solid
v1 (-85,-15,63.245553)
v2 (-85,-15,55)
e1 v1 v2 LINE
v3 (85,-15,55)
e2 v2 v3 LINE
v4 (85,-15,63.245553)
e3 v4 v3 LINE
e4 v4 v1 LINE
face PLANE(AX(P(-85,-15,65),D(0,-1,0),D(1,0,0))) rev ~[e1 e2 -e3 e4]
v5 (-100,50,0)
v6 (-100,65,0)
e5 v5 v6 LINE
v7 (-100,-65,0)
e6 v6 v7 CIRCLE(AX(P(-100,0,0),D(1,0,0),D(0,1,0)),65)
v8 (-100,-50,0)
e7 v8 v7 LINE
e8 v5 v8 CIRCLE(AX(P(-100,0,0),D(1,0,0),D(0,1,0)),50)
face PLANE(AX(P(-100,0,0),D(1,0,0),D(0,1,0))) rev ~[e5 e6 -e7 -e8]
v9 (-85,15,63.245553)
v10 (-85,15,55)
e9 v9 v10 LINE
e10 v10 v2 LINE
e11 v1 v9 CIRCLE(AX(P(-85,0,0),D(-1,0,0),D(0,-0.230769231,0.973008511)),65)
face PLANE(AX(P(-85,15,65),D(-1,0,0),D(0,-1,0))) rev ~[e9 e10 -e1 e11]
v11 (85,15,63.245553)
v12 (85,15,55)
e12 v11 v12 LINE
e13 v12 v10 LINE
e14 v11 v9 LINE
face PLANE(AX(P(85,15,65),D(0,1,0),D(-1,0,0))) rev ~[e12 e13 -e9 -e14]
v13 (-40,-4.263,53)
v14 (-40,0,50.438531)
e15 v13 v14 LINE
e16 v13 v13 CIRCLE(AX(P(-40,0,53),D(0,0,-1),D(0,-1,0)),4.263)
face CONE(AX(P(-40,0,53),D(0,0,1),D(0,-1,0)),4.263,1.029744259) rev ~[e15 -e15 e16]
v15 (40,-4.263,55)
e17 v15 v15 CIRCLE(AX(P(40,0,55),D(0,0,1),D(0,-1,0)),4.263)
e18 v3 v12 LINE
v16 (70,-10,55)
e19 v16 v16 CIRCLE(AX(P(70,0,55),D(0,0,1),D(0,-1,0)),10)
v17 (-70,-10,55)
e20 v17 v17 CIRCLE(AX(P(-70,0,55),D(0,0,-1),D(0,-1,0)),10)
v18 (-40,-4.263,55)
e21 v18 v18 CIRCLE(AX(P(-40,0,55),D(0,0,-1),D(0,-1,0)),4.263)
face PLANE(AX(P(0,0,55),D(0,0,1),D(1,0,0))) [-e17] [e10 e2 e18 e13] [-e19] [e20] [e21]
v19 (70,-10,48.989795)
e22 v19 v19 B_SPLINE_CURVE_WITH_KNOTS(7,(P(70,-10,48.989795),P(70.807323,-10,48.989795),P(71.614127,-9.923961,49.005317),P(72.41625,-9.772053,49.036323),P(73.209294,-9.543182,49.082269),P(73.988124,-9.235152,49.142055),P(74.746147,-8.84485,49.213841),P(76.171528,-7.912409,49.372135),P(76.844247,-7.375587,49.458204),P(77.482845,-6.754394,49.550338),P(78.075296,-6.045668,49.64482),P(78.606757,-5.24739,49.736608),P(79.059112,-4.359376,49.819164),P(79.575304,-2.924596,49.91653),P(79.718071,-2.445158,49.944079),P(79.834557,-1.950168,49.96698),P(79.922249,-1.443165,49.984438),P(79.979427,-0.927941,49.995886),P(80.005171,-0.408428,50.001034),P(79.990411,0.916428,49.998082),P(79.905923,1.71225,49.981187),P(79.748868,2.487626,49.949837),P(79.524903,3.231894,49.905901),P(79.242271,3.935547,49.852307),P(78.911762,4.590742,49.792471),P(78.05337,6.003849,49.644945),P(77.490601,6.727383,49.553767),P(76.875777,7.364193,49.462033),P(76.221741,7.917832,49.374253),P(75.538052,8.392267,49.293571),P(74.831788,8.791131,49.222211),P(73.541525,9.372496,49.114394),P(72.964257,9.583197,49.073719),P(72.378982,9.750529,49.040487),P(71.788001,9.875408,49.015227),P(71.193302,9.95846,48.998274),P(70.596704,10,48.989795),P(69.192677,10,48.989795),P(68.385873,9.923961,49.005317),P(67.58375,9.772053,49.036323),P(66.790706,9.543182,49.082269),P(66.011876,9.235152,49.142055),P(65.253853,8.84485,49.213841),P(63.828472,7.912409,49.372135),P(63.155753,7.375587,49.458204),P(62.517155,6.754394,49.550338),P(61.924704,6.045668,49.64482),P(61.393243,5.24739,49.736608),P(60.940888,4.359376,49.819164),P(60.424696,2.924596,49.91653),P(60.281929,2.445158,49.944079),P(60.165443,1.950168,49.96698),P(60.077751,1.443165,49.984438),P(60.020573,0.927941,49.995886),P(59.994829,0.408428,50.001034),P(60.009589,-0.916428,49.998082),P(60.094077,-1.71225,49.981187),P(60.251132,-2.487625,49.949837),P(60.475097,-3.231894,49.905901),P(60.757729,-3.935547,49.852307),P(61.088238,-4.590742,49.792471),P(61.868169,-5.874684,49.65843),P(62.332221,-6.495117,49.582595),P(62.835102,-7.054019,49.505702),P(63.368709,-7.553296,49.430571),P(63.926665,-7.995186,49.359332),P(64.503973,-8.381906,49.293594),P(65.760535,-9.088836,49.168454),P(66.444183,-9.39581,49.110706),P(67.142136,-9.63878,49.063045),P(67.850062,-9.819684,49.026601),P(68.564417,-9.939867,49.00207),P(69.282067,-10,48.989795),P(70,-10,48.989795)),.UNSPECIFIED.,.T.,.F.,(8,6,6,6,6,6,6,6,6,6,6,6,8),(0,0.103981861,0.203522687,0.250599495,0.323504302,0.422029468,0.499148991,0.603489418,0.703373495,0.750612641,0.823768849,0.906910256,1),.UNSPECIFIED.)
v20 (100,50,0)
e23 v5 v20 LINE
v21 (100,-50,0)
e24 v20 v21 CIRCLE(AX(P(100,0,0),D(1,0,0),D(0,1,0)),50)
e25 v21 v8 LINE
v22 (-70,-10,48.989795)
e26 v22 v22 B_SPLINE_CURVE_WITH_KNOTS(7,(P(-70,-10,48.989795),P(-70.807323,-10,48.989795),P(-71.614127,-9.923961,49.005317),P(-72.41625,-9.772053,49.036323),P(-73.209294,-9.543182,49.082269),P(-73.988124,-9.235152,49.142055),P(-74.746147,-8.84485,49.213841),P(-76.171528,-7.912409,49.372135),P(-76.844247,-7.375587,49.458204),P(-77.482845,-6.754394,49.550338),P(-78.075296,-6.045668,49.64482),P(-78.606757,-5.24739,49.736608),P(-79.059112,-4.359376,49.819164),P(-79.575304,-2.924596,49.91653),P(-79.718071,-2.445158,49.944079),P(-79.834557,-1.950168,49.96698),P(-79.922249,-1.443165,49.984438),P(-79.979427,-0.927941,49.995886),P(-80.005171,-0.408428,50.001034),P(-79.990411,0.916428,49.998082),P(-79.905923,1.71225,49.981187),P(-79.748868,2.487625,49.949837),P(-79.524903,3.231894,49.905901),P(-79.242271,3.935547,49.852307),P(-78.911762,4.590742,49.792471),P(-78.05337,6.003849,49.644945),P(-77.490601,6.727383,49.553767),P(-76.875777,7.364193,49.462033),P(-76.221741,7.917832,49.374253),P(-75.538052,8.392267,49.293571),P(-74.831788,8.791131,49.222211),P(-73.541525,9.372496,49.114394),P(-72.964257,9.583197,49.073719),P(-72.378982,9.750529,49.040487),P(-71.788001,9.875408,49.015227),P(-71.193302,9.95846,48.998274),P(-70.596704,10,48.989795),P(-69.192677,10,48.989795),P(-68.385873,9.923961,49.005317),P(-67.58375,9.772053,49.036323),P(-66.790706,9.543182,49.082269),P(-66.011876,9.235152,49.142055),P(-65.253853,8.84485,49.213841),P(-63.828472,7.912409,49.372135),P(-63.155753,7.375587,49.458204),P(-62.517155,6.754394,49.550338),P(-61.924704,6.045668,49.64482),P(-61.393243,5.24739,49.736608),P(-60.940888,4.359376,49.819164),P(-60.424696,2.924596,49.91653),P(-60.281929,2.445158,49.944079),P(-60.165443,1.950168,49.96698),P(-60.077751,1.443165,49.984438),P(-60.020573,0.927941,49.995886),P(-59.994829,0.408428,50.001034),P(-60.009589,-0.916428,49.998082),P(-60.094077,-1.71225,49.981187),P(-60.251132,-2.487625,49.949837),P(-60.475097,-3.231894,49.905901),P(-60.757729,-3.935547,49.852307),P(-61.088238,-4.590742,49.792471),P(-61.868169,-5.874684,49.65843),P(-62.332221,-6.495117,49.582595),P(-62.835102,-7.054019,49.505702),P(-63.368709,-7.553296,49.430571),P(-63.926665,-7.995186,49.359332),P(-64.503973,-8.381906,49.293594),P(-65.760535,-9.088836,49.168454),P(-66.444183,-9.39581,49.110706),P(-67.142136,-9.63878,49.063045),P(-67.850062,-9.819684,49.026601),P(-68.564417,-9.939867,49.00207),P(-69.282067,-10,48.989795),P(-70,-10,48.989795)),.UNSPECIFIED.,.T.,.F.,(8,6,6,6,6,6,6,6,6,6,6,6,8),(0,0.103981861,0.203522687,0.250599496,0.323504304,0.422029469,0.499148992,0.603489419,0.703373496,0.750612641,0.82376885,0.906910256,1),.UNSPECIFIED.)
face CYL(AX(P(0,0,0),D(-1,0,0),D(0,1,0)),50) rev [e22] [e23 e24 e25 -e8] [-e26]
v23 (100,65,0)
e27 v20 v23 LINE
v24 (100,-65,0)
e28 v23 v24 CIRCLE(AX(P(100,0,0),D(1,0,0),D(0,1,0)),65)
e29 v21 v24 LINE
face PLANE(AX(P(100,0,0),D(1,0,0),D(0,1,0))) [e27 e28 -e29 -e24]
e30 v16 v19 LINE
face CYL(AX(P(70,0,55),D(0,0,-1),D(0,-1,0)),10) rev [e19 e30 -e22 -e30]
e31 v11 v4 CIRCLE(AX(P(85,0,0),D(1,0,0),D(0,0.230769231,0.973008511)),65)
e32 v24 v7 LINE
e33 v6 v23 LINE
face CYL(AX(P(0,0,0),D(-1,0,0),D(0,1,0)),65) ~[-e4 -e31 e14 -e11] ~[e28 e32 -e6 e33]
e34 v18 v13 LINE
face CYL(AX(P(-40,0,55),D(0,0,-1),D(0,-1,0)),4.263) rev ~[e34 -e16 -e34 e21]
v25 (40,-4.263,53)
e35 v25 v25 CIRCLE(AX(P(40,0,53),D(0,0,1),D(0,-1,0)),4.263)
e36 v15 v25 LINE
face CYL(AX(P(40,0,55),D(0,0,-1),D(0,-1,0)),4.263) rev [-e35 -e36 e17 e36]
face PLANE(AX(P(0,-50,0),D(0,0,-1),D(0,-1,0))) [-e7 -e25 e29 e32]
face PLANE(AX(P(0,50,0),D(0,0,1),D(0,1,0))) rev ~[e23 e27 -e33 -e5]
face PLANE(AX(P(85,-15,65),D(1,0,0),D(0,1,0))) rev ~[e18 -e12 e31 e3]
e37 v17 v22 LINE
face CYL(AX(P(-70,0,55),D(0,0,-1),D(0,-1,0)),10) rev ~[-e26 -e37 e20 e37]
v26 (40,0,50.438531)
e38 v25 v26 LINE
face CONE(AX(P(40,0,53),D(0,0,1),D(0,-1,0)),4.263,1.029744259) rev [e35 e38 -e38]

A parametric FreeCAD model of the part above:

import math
import FreeCAD as App
import Part
import Sketcher

doc = App.newDocument("Part")
body = doc.addObject("PartDesign::Body", "Body")

# Sketch on YZ plane
sketch1 = doc.addObject("Sketcher::SketchObject", "Sketch")
body.addObject(sketch1)
sketch1.AttachmentSupport = (doc.YZ_Plane, [""])
sketch1.MapMode = "FlatFace"
sketch1.addGeometry(Part.ArcOfCircle(Part.Circle(App.Vector(0, 0, 0), App.Vector(0, 0, 1), 50), math.radians(0), math.radians(180)), False)
sketch1.addGeometry(Part.LineSegment(App.Vector(50, 0, 0), App.Vector(65, 0, 0)), False)
sketch1.addGeometry(Part.ArcOfCircle(Part.Circle(App.Vector(0, 0, 0), App.Vector(0, 0, 1), 65), math.radians(0), math.radians(180)), False)
sketch1.addGeometry(Part.LineSegment(App.Vector(-65, 0, 0), App.Vector(-50, 0, 0)), False)
sketch1.addConstraint(Sketcher.Constraint("Coincident", 0, 1, 1, 1))
sketch1.addConstraint(Sketcher.Constraint("Coincident", 1, 2, 2, 1))
sketch1.addConstraint(Sketcher.Constraint("Coincident", 2, 2, 3, 1))
sketch1.addConstraint(Sketcher.Constraint("Coincident", 3, 2, 0, 2))
sketch1.addConstraint(Sketcher.Constraint("Horizontal", 1))
sketch1.addConstraint(Sketcher.Constraint("Horizontal", 3))
sketch1.addConstraint(Sketcher.Constraint("Coincident", 0, 3, -1, 1))
sketch1.addConstraint(Sketcher.Constraint("Coincident", 2, 3, -1, 1))
sketch1.addConstraint(Sketcher.Constraint("PointOnObject", 0, 1, -1))
sketch1.addConstraint(Sketcher.Constraint("PointOnObject", 2, 2, -1))
sketch1.addConstraint(Sketcher.Constraint("Radius", 0, 50.0))
sketch1.addConstraint(Sketcher.Constraint("DistanceX", 1, 1, 1, 2, 15.0))
pad1 = doc.addObject("PartDesign::Pad", "Pad")
body.addObject(pad1)
pad1.Profile = sketch1
pad1.Length = 200
pad1.Midplane = True

# Sketch on XY plane
sketch2 = doc.addObject("Sketcher::SketchObject", "Sketch001")
body.addObject(sketch2)
sketch2.AttachmentSupport = (doc.XY_Plane, [""])
sketch2.MapMode = "FlatFace"
sketch2.AttachmentOffset = App.Placement(App.Vector(0, 0, 65), App.Rotation())
sketch2.addGeometry(Part.LineSegment(App.Vector(85, -15, 0), App.Vector(85, 15, 0)), False)
sketch2.addGeometry(Part.LineSegment(App.Vector(85, 15, 0), App.Vector(-85, 15, 0)), False)
sketch2.addGeometry(Part.LineSegment(App.Vector(-85, 15, 0), App.Vector(-85, -15, 0)), False)
sketch2.addGeometry(Part.LineSegment(App.Vector(-85, -15, 0), App.Vector(85, -15, 0)), False)
sketch2.addConstraint(Sketcher.Constraint("Coincident", 0, 2, 1, 1))
sketch2.addConstraint(Sketcher.Constraint("Coincident", 1, 2, 2, 1))
sketch2.addConstraint(Sketcher.Constraint("Coincident", 2, 2, 3, 1))
sketch2.addConstraint(Sketcher.Constraint("Coincident", 3, 2, 0, 1))
sketch2.addConstraint(Sketcher.Constraint("Vertical", 0))
sketch2.addConstraint(Sketcher.Constraint("Horizontal", 1))
sketch2.addConstraint(Sketcher.Constraint("Vertical", 2))
sketch2.addConstraint(Sketcher.Constraint("Horizontal", 3))
sketch2.addConstraint(Sketcher.Constraint("Symmetric", 0, 2, 2, 2, -1, 1))
sketch2.addConstraint(Sketcher.Constraint("DistanceX", 1, 2, 1, 1, 170.0))
sketch2.addConstraint(Sketcher.Constraint("DistanceY", 0, 1, 0, 2, 30.0))
pocket1 = doc.addObject("PartDesign::Pocket", "Pocket")
body.addObject(pocket1)
pocket1.Profile = sketch2
pocket1.Length = 10

# Sketch on XY plane
sketch3 = doc.addObject("Sketcher::SketchObject", "Sketch002")
body.addObject(sketch3)
sketch3.AttachmentSupport = (doc.XY_Plane, [""])
sketch3.MapMode = "FlatFace"
sketch3.AttachmentOffset = App.Placement(App.Vector(0, 0, 55), App.Rotation())
sketch3.addGeometry(Part.Circle(App.Vector(-40, 0, 0), App.Vector(0, 0, 1), 4.3), False)
sketch3.addConstraint(Sketcher.Constraint("PointOnObject", 0, 3, -1))
sketch3.addConstraint(Sketcher.Constraint("Diameter", 0, 8.526))
sketch3.addConstraint(Sketcher.Constraint("DistanceX", 0, 3, -1, 1, 40.0))
doc.recompute()
hole = doc.addObject("PartDesign::Hole", "Hole")
body.addObject(hole)
hole.Profile = sketch3
hole.ThreadType = "None"
hole.Diameter = 8.526
hole.DepthType = "Dimension"
hole.Depth = 2
hole.DrillPoint = "Angled"
hole.DrillPointAngle = 118

# Sketch on XY plane
sketch4 = doc.addObject("Sketcher::SketchObject", "Sketch003")
body.addObject(sketch4)
sketch4.AttachmentSupport = (doc.XY_Plane, [""])
sketch4.MapMode = "FlatFace"
sketch4.AttachmentOffset = App.Placement(App.Vector(0, 0, 55), App.Rotation())
sketch4.addGeometry(Part.Circle(App.Vector(-70, 0, 0), App.Vector(0, 0, 1), 10), False)
sketch4.addConstraint(Sketcher.Constraint("PointOnObject", 0, 3, -1))
sketch4.addConstraint(Sketcher.Constraint("Diameter", 0, 20.0))
sketch4.addConstraint(Sketcher.Constraint("DistanceX", 0, 3, -1, 1, 70.0))
doc.recompute()
hole2 = doc.addObject("PartDesign::Hole", "Hole001")
body.addObject(hole2)
hole2.Profile = sketch4
hole2.ThreadType = "None"
hole2.Diameter = 20
hole2.DepthType = "ThroughAll"
doc.recompute()

mirrored = doc.addObject("PartDesign::Mirrored", "Mirrored")
body.addObject(mirrored)
mirrored.Originals = [hole, hole2]
mirrored.MirrorPlane = (doc.YZ_Plane, [""])
body.Tip = mirrored

doc.recompute()
